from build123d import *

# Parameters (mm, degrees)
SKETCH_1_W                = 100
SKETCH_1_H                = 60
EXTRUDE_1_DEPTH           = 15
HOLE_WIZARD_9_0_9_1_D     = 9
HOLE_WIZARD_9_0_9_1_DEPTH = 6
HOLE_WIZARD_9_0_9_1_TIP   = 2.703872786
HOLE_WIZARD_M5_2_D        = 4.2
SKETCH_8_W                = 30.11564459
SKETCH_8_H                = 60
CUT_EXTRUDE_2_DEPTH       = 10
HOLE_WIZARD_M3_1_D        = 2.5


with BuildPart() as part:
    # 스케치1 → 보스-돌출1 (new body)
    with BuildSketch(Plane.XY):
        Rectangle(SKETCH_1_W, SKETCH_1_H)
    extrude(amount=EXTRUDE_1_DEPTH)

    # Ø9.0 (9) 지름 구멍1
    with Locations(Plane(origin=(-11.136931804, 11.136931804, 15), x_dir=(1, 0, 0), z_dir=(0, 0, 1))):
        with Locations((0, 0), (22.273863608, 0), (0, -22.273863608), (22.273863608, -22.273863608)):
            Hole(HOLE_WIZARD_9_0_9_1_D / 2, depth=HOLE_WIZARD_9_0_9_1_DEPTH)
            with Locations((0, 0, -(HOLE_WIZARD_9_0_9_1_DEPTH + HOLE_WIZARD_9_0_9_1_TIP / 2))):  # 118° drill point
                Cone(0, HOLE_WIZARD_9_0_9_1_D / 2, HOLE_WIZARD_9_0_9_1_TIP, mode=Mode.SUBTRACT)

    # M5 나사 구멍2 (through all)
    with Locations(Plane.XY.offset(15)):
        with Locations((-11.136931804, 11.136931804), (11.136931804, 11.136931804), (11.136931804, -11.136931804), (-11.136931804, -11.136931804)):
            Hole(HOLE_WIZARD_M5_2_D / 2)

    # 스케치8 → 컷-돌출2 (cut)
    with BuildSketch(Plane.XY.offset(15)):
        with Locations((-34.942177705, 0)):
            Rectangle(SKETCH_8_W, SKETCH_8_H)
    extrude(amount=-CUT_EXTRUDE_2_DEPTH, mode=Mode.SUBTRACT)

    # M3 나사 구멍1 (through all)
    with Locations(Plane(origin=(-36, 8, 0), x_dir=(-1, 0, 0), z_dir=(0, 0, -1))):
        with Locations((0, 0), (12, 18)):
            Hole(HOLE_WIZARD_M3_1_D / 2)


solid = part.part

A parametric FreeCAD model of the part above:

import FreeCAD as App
import Part
import Sketcher
Q = App.Units.Quantity

doc = App.newDocument("Part")
body = doc.addObject("PartDesign::Body", "Body")

# Sketch on XY plane
sketch1 = doc.addObject("Sketcher::SketchObject", "Sketch")
body.addObject(sketch1)
sketch1.AttachmentSupport = (doc.XY_Plane, [""])
sketch1.MapMode = "FlatFace"
sketch1.addGeometry([
    Part.LineSegment(App.Vector(-50, 30, 0), App.Vector(-50, -30, 0)),
    Part.LineSegment(App.Vector(-50, -30, 0), App.Vector(50, -30, 0)),
    Part.LineSegment(App.Vector(50, -30, 0), App.Vector(50, 30, 0)),
    Part.LineSegment(App.Vector(50, 30, 0), App.Vector(-50, 30, 0)),
], False)
sketch1.addConstraint([
    Sketcher.Constraint("Coincident", 0, 2, 1, 1),
    Sketcher.Constraint("Coincident", 1, 2, 2, 1),
    Sketcher.Constraint("Coincident", 2, 2, 3, 1),
    Sketcher.Constraint("Coincident", 3, 2, 0, 1),
    Sketcher.Constraint("Vertical", 0),
    Sketcher.Constraint("Horizontal", 1),
    Sketcher.Constraint("Vertical", 2),
    Sketcher.Constraint("Horizontal", 3),
    Sketcher.Constraint("Symmetric", 0, 2, 2, 2, -1, 1),
    Sketcher.Constraint("DistanceX", 1, 1, 1, 2, Q("100 mm")),
    Sketcher.Constraint("DistanceY", 0, 2, 0, 1, Q("60 mm")),
])
pad1 = doc.addObject("PartDesign::Pad", "Pad")
body.addObject(pad1)
pad1.Profile = sketch1
pad1.Length = 15

# Sketch on XY plane
sketch2 = doc.addObject("Sketcher::SketchObject", "Sketch001")
body.addObject(sketch2)
sketch2.AttachmentSupport = (doc.XY_Plane, [""])
sketch2.MapMode = "FlatFace"
sketch2.AttachmentOffset = App.Placement(App.Vector(0, 0, 15), App.Rotation())
sketch2.addGeometry([
    Part.Circle(App.Vector(-11.1, 11.1, 0), App.Vector(0, 0, 1), 4.5),
    Part.Circle(App.Vector(11.1, 11.1, 0), App.Vector(0, 0, 1), 4.5),
    Part.Circle(App.Vector(-11.1, -11.1, 0), App.Vector(0, 0, 1), 4.5),
    Part.Circle(App.Vector(11.1, -11.1, 0), App.Vector(0, 0, 1), 4.5),
], False)
sketch2.addConstraint([
    Sketcher.Constraint("Equal", 0, 1),
    Sketcher.Constraint("Equal", 1, 2),
    Sketcher.Constraint("Equal", 2, 3),
    Sketcher.Constraint("Symmetric", 1, 3, 2, 3, -1, 1),
    Sketcher.Constraint("Symmetric", 0, 3, 3, 3, -1, 1),
    Sketcher.Constraint("Symmetric", 0, 3, 1, 3, -2),
    Sketcher.Constraint("Diameter", 0, Q("9 mm")),
    Sketcher.Constraint("DistanceX", 0, 3, -1, 1, Q("11.136932 mm")),
    Sketcher.Constraint("DistanceY", -1, 1, 0, 3, Q("11.136932 mm")),
])
doc.recompute()
hole = doc.addObject("PartDesign::Hole", "Hole")
body.addObject(hole)
hole.Profile = sketch2
hole.ThreadType = "None"
hole.Diameter = 9
hole.DepthType = "Dimension"
hole.Depth = 6
hole.DrillPoint = "Angled"
hole.DrillPointAngle = 118

# Sketch on XY plane
sketch3 = doc.addObject("Sketcher::SketchObject", "Sketch002")
body.addObject(sketch3)
sketch3.AttachmentSupport = (doc.XY_Plane, [""])
sketch3.MapMode = "FlatFace"
sketch3.AttachmentOffset = App.Placement(App.Vector(0, 0, 15), App.Rotation())
sketch3.addGeometry([
    Part.Circle(App.Vector(-11.1, 11.1, 0), App.Vector(0, 0, 1), 2.1),
    Part.Circle(App.Vector(11.1, 11.1, 0), App.Vector(0, 0, 1), 2.1),
    Part.Circle(App.Vector(11.1, -11.1, 0), App.Vector(0, 0, 1), 2.1),
    Part.Circle(App.Vector(-11.1, -11.1, 0), App.Vector(0, 0, 1), 2.1),
], False)
sketch3.addConstraint([
    Sketcher.Constraint("Equal", 0, 1),
    Sketcher.Constraint("Equal", 1, 2),
    Sketcher.Constraint("Equal", 2, 3),
    Sketcher.Constraint("Symmetric", 0, 3, 2, 3, -1, 1),
    Sketcher.Constraint("Symmetric", 1, 3, 3, 3, -1, 1),
    Sketcher.Constraint("Symmetric", 0, 3, 1, 3, -2),
    Sketcher.Constraint("Diameter", 0, Q("4.2 mm")),
    Sketcher.Constraint("DistanceX", 0, 3, -1, 1, Q("11.136932 mm")),
    Sketcher.Constraint("DistanceY", -1, 1, 0, 3, Q("11.136932 mm")),
])
doc.recompute()
hole2 = doc.addObject("PartDesign::Hole", "Hole001")
body.addObject(hole2)
hole2.Profile = sketch3
hole2.ThreadType = "None"
hole2.Diameter = 4.2
hole2.DepthType = "ThroughAll"

# Sketch on XY plane
sketch4 = doc.addObject("Sketcher::SketchObject", "Sketch003")
body.addObject(sketch4)
sketch4.AttachmentSupport = (doc.XY_Plane, [""])
sketch4.MapMode = "FlatFace"
sketch4.AttachmentOffset = App.Placement(App.Vector(0, 0, 15), App.Rotation())
sketch4.addGeometry([
    Part.LineSegment(App.Vector(-50, 30, 0), App.Vector(-50, -30, 0)),
    Part.LineSegment(App.Vector(-50, -30, 0), App.Vector(-20, -30, 0)),
    Part.LineSegment(App.Vector(-20, -30, 0), App.Vector(-20, 30, 0)),
    Part.LineSegment(App.Vector(-20, 30, 0), App.Vector(-50, 30, 0)),
], False)
sketch4.addConstraint([
    Sketcher.Constraint("Coincident", 0, 2, 1, 1),
    Sketcher.Constraint("Coincident", 1, 2, 2, 1),
    Sketcher.Constraint("Coincident", 2, 2, 3, 1),
    Sketcher.Constraint("Coincident", 3, 2, 0, 1),
    Sketcher.Constraint("Vertical", 0),
    Sketcher.Constraint("Horizontal", 1),
    Sketcher.Constraint("Vertical", 2),
    Sketcher.Constraint("Horizontal", 3),
    Sketcher.Constraint("DistanceY", 0, 2, 0, 1, Q("60 mm")),
    Sketcher.Constraint("DistanceX", 0, 2, -1, 1, Q("50 mm")),
    Sketcher.Constraint("DistanceY", 0, 2, -1, 1, Q("30 mm")),
    Sketcher.Constraint("DistanceX", 1, 1, 1, 2, Q("30.115645 mm")),
])
pocket1 = doc.addObject("PartDesign::Pocket", "Pocket")
body.addObject(pocket1)
pocket1.Profile = sketch4
pocket1.Length = 10

# Sketch on XY plane
sketch5 = doc.addObject("Sketcher::SketchObject", "Sketch004")
body.addObject(sketch5)
sketch5.AttachmentSupport = (doc.XY_Plane, [""])
sketch5.MapMode = "FlatFace"
sketch5.addGeometry([
    Part.Circle(App.Vector(-36, 8, 0), App.Vector(0, 0, 1), 1.2),
    Part.Circle(App.Vector(-48, 26, 0), App.Vector(0, 0, 1), 1.2),
], False)
sketch5.addConstraint([
    Sketcher.Constraint("Equal", 0, 1),
    Sketcher.Constraint("Diameter", 0, Q("2.5 mm")),
    Sketcher.Constraint("DistanceX", 0, 3, -1, 1, Q("36 mm")),
    Sketcher.Constraint("DistanceY", -1, 1, 0, 3, Q("8 mm")),
    Sketcher.Constraint("DistanceX", 1, 3, -1, 1, Q("48 mm")),
    Sketcher.Constraint("DistanceY", -1, 1, 1, 3, Q("26 mm")),
])
doc.recompute()
hole3 = doc.addObject("PartDesign::Hole", "Hole002")
body.addObject(hole3)
hole3.Profile = sketch5
hole3.ThreadType = "None"
hole3.Diameter = 2.5
hole3.DepthType = "ThroughAll"
hole3.Reversed = True

doc.recompute()
